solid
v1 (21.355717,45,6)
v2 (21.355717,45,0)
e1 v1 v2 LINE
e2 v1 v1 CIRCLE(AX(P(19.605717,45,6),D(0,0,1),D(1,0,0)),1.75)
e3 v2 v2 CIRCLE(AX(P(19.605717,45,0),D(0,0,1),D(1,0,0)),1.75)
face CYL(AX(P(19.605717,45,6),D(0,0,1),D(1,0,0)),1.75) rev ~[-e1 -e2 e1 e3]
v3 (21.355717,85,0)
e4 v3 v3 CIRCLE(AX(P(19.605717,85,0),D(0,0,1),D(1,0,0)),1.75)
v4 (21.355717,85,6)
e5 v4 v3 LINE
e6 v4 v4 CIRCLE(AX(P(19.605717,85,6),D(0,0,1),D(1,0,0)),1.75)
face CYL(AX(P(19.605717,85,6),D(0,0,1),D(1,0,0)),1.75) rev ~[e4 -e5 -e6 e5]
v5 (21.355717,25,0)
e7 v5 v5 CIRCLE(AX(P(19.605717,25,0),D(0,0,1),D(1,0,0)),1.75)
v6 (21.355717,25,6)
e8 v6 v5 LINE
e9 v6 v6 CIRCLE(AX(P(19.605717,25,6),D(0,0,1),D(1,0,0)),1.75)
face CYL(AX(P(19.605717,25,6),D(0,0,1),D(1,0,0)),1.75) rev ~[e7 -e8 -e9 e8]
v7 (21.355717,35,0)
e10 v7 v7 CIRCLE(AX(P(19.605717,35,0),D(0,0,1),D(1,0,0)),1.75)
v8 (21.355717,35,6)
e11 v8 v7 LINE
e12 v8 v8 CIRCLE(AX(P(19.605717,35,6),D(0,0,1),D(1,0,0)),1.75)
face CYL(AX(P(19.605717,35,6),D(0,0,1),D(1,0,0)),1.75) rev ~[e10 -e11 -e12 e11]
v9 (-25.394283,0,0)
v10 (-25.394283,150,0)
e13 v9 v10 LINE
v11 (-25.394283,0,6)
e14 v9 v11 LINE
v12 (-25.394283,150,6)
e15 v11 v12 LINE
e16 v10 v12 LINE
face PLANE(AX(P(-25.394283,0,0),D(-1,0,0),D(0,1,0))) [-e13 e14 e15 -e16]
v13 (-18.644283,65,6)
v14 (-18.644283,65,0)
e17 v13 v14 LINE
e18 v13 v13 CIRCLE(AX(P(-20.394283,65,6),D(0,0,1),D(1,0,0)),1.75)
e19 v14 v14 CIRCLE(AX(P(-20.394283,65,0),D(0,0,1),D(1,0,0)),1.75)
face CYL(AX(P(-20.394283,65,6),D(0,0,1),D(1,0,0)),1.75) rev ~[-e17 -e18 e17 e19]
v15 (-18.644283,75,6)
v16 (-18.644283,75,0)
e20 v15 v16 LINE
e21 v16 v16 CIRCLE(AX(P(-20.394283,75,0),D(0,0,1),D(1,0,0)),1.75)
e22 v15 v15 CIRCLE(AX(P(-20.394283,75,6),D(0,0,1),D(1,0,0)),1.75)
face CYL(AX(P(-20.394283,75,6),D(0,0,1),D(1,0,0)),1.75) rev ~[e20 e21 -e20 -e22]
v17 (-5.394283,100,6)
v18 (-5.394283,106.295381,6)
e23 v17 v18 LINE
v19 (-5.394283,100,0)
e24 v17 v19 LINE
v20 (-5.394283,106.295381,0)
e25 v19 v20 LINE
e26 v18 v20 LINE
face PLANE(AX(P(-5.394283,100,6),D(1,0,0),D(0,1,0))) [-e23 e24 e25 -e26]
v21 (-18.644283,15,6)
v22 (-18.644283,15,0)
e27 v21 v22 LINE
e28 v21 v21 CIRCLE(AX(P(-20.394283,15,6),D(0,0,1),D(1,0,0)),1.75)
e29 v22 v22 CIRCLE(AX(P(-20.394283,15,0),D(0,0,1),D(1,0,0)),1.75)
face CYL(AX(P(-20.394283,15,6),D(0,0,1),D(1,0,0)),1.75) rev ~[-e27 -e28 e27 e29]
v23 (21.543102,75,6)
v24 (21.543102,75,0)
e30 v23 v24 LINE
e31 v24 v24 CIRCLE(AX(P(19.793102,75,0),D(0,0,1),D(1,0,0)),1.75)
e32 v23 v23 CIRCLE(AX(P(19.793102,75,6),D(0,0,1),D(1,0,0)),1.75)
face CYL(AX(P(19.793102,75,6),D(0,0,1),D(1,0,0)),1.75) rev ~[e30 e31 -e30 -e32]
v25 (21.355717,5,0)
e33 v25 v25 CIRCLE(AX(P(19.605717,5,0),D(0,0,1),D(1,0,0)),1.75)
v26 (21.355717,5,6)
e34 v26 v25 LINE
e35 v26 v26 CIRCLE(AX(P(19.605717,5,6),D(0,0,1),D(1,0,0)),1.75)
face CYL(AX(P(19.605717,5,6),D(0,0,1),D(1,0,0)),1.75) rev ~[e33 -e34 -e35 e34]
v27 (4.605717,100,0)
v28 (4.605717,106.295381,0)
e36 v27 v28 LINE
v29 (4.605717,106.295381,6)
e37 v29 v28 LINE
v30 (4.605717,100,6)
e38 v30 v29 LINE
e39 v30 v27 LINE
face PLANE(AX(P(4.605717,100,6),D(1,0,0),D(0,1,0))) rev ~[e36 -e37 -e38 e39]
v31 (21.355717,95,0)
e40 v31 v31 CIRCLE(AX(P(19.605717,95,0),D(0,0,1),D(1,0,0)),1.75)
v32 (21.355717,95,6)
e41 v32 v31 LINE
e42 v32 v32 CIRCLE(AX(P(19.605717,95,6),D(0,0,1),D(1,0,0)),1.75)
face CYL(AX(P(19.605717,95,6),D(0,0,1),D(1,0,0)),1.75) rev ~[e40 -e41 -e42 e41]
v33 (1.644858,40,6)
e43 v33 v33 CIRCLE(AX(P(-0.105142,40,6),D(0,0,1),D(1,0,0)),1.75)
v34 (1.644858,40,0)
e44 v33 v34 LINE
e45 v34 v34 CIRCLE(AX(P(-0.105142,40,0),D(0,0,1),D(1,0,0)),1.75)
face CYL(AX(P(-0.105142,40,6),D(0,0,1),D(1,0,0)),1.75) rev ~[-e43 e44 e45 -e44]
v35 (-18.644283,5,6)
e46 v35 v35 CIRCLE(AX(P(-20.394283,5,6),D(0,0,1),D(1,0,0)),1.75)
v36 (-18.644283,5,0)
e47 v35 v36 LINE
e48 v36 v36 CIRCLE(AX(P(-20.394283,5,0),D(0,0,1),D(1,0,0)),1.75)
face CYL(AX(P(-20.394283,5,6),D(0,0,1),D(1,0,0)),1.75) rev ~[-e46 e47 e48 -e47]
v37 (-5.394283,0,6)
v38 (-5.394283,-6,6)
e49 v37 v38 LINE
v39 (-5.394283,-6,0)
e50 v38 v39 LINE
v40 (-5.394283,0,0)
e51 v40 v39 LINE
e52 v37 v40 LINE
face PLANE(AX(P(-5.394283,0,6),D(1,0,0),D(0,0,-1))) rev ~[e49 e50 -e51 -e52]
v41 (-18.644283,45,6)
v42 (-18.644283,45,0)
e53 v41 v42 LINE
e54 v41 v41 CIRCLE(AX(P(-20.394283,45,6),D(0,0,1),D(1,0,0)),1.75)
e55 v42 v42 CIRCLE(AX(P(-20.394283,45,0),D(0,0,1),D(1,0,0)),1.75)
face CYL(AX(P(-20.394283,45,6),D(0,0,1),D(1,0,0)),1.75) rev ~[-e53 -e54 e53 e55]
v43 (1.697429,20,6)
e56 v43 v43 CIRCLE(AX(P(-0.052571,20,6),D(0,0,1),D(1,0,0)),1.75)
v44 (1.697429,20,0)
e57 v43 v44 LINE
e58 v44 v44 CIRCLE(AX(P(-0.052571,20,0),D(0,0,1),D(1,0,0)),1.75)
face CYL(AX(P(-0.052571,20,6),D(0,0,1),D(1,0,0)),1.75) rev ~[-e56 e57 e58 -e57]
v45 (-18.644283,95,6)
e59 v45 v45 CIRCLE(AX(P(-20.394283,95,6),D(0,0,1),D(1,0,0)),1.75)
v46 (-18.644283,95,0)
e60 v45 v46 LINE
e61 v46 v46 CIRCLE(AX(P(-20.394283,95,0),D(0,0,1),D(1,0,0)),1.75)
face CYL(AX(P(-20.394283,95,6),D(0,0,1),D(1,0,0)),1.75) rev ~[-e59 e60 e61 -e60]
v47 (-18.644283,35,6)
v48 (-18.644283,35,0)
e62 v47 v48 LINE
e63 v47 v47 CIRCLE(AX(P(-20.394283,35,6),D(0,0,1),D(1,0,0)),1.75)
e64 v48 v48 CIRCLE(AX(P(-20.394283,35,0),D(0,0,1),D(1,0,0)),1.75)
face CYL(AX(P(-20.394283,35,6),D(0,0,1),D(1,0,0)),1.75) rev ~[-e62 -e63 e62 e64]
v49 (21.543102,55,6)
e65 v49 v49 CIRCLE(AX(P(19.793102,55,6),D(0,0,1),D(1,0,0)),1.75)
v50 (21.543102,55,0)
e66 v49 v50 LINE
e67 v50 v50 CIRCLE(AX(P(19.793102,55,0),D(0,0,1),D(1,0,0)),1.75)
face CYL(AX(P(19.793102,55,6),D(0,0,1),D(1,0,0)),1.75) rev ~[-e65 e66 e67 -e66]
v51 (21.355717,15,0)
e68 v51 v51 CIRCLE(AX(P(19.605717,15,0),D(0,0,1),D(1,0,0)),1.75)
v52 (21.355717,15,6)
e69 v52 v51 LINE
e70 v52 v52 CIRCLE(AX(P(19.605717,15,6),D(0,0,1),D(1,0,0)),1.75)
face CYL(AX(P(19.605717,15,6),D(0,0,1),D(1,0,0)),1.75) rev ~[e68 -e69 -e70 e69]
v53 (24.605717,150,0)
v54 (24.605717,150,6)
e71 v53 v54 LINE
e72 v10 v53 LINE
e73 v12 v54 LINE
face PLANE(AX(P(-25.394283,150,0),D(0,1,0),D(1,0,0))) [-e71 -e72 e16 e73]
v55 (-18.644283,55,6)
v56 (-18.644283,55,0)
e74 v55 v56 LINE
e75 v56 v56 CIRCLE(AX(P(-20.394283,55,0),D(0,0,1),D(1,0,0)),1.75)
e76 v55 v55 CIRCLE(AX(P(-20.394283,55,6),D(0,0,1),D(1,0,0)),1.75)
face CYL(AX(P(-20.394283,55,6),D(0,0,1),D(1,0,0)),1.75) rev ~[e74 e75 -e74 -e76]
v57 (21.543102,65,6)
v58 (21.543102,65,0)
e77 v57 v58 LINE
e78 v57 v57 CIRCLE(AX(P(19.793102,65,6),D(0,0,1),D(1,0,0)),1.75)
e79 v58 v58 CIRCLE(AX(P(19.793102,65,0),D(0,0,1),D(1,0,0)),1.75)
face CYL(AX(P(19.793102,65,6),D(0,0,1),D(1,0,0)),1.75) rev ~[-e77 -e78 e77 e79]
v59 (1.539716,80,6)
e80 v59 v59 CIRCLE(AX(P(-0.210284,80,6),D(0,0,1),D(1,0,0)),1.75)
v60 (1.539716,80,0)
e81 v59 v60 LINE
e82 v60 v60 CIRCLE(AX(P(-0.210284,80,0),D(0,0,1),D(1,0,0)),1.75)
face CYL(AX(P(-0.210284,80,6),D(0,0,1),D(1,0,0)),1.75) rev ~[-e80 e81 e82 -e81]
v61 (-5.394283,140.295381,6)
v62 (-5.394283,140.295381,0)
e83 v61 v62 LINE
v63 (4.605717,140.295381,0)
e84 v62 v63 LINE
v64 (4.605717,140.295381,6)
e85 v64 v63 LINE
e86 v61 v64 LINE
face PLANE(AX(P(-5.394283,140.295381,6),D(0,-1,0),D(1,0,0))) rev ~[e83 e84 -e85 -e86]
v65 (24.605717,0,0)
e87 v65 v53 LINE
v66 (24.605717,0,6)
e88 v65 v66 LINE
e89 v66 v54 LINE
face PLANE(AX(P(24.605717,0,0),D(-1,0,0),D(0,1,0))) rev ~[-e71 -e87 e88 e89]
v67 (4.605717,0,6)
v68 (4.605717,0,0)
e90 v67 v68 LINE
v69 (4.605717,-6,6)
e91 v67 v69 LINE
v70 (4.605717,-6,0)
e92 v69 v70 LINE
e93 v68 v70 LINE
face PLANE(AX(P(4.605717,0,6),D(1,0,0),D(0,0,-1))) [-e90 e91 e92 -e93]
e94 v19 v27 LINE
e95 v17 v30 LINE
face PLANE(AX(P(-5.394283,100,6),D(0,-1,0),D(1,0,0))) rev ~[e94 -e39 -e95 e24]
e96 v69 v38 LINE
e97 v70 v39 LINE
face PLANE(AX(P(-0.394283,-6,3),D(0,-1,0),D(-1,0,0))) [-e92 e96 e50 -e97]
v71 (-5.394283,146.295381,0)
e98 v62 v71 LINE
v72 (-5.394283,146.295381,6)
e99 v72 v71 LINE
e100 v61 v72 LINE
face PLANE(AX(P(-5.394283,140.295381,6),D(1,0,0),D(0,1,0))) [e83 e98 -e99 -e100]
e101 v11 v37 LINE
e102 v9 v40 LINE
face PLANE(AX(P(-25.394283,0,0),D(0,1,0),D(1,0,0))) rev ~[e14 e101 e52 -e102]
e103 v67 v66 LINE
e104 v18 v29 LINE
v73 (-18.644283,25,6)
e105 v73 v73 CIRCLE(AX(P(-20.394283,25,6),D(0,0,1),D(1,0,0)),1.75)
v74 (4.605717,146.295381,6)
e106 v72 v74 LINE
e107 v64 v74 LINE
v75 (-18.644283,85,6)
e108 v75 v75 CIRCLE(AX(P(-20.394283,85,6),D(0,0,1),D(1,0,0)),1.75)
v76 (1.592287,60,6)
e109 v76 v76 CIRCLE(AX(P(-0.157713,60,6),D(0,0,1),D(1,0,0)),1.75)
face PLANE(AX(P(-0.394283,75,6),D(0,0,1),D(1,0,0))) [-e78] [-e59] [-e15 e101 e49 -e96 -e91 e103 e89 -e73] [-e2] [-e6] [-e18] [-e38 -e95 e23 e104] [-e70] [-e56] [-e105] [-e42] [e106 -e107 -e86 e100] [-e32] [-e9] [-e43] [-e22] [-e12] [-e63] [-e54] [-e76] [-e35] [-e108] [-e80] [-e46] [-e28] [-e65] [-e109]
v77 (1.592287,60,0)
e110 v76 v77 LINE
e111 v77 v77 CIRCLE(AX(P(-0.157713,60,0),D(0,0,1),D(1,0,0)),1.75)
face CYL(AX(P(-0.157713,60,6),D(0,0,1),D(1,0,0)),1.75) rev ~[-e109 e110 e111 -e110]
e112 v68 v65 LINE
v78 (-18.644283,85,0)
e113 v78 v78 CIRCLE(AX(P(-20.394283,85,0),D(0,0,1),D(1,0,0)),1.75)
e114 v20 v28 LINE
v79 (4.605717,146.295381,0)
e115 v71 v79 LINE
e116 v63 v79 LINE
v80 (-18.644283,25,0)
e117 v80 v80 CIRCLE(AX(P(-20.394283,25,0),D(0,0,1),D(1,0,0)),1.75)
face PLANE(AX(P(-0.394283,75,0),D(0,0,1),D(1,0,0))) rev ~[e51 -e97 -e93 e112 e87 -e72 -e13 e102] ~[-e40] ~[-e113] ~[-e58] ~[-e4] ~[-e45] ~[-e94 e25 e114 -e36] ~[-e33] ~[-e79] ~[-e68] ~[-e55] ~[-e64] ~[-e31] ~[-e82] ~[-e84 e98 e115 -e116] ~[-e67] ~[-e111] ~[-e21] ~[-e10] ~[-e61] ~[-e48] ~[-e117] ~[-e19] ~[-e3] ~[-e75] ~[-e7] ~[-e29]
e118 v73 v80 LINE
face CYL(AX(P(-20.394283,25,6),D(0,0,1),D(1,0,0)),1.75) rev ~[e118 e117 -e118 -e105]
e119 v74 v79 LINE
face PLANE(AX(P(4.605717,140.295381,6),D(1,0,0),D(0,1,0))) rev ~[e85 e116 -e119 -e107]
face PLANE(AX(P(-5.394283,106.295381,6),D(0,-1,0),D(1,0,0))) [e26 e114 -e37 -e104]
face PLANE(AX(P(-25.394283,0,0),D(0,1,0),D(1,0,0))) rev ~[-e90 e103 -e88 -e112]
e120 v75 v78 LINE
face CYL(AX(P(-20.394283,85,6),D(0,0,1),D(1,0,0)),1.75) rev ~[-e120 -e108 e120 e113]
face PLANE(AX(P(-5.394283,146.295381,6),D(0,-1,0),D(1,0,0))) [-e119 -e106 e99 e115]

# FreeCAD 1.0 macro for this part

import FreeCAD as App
import Part
import Sketcher
Q = App.Units.Quantity


def add_polygon(sketch, points):
    """Adds a closed chain of lines whose ends are joined by coincident constraints."""
    first, n = sketch.GeometryCount, len(points)
    for a, b in zip(points, points[1:] + points[:1]):
        sketch.addGeometry(Part.LineSegment(App.Vector(*a, 0), App.Vector(*b, 0)), False)
    for i in range(n):
        sketch.addConstraint(Sketcher.Constraint("Coincident", first + i, 2, first + (i + 1) % n, 1))

doc = App.newDocument("Part")
params = doc.addObject("Spreadsheet::Sheet", "Params")
for row, (alias, value) in enumerate([
    ("sketch1_width", "50 mm"),
    ("sketch1_height", "150 mm"),
    ("pad1_length", "6 mm"),
    ("sketch2_diameter", "3.5 mm"),
    ("pocket1_length", "6 mm"),
    ("sketch3_width", "10 mm"),
    ("sketch3_height", "6 mm"),
    ("pad2_length", "6 mm"),
    ("sketch4_width", "10 mm"),
    ("pocket2_length", "6 mm"),
    ("sketch5_width", "10 mm"),
    ("sketch5_height", "6 mm"),
    ("pocket3_length", "6 mm"),
], start=1):
    params.set(f"A{row}", alias)
    params.set(f"B{row}", "=" + value)
    params.setAlias(f"B{row}", alias)

body = doc.addObject("PartDesign::Body", "Body")

# Sketch on XY plane
sketch1 = body.newObject("Sketcher::SketchObject", "Sketch")
sketch1.AttachmentSupport = (doc.getObject("XY_Plane"), [""])
sketch1.MapMode = "FlatFace"
add_polygon(sketch1, [(-25, 150), (-25, 0), (25, 0), (25, 150)])  # lines 0-3
sketch1.addConstraint([
    Sketcher.Constraint("Vertical", 0),
    Sketcher.Constraint("Horizontal", 1),
    Sketcher.Constraint("Vertical", 2),
    Sketcher.Constraint("Horizontal", 3),
    Sketcher.Constraint("PointOnObject", 0, 2, -1),
    Sketcher.Constraint("DistanceX", 1, 1, 1, 2, Q("50 mm")),
    Sketcher.Constraint("DistanceY", 0, 2, 0, 1, Q("150 mm")),
    Sketcher.Constraint("DistanceX", 0, 2, -1, 1, Q("25.394283 mm")),
])
sketch1.setExpression("Constraints[9]", "Params.sketch1_width")
sketch1.setExpression("Constraints[10]", "Params.sketch1_height")
pad1 = body.newObject("PartDesign::Pad", "Pad")
pad1.Profile = sketch1
pad1.setExpression("Length", "Params.pad1_length")

# Sketch on XY plane
sketch2 = body.newObject("Sketcher::SketchObject", "Sketch001")
sketch2.AttachmentSupport = (doc.getObject("XY_Plane"), [""])
sketch2.MapMode = "FlatFace"
sketch2.AttachmentOffset = App.Placement(App.Vector(0, 0, 6), App.Rotation())
sketch2.addGeometry([
    Part.Circle(App.Vector(-20.4, 95, 0), App.Vector(0, 0, 1), 1.8),  # 0
    Part.Circle(App.Vector(-20.4, 85, 0), App.Vector(0, 0, 1), 1.8),  # 1
    Part.Circle(App.Vector(-20.4, 75, 0), App.Vector(0, 0, 1), 1.8),  # 2
    Part.Circle(App.Vector(-20.4, 65, 0), App.Vector(0, 0, 1), 1.8),  # 3
    Part.Circle(App.Vector(-20.4, 55, 0), App.Vector(0, 0, 1), 1.8),  # 4
    Part.Circle(App.Vector(-20.4, 45, 0), App.Vector(0, 0, 1), 1.8),  # 5
    Part.Circle(App.Vector(-20.4, 35, 0), App.Vector(0, 0, 1), 1.8),  # 6
    Part.Circle(App.Vector(-20.4, 25, 0), App.Vector(0, 0, 1), 1.8),  # 7
    Part.Circle(App.Vector(-20.4, 15, 0), App.Vector(0, 0, 1), 1.8),  # 8
    Part.Circle(App.Vector(-20.4, 5, 0), App.Vector(0, 0, 1), 1.8),  # 9
    Part.Circle(App.Vector(19.6, 95, 0), App.Vector(0, 0, 1), 1.8),  # 10
    Part.Circle(App.Vector(19.6, 85, 0), App.Vector(0, 0, 1), 1.8),  # 11
    Part.Circle(App.Vector(19.8, 75, 0), App.Vector(0, 0, 1), 1.8),  # 12
    Part.Circle(App.Vector(19.8, 65, 0), App.Vector(0, 0, 1), 1.8),  # 13
    Part.Circle(App.Vector(19.8, 55, 0), App.Vector(0, 0, 1), 1.8),  # 14
    Part.Circle(App.Vector(19.6, 45, 0), App.Vector(0, 0, 1), 1.8),  # 15
    Part.Circle(App.Vector(19.6, 35, 0), App.Vector(0, 0, 1), 1.8),  # 16
    Part.Circle(App.Vector(19.6, 25, 0), App.Vector(0, 0, 1), 1.8),  # 17
    Part.Circle(App.Vector(19.6, 15, 0), App.Vector(0, 0, 1), 1.8),  # 18
    Part.Circle(App.Vector(19.6, 5, 0), App.Vector(0, 0, 1), 1.8),  # 19
    Part.Circle(App.Vector(-0.1, 20, 0), App.Vector(0, 0, 1), 1.8),  # 20
    Part.Circle(App.Vector(-0.2, 80, 0), App.Vector(0, 0, 1), 1.8),  # 21
    Part.Circle(App.Vector(-0.1, 40, 0), App.Vector(0, 0, 1), 1.8),  # 22
    Part.Circle(App.Vector(-0.2, 60, 0), App.Vector(0, 0, 1), 1.8),  # 23
], False)
sketch2.addConstraint([
    Sketcher.Constraint("Equal", 0, 1),
    Sketcher.Constraint("Equal", 1, 2),
    Sketcher.Constraint("Equal", 2, 3),
    Sketcher.Constraint("Equal", 3, 4),
    Sketcher.Constraint("Equal", 4, 5),
    Sketcher.Constraint("Equal", 5, 6),
    Sketcher.Constraint("Equal", 6, 7),
    Sketcher.Constraint("Equal", 7, 8),
    Sketcher.Constraint("Equal", 8, 9),
    Sketcher.Constraint("Equal", 9, 10),
    Sketcher.Constraint("Equal", 10, 11),
    Sketcher.Constraint("Equal", 11, 12),
    Sketcher.Constraint("Equal", 12, 13),
    Sketcher.Constraint("Equal", 13, 14),
    Sketcher.Constraint("Equal", 14, 15),
    Sketcher.Constraint("Equal", 15, 16),
    Sketcher.Constraint("Equal", 16, 17),
    Sketcher.Constraint("Equal", 17, 18),
    Sketcher.Constraint("Equal", 18, 19),
    Sketcher.Constraint("Equal", 19, 20),
    Sketcher.Constraint("Equal", 20, 21),
    Sketcher.Constraint("Equal", 21, 22),
    Sketcher.Constraint("Equal", 22, 23),
    Sketcher.Constraint("Horizontal", 0, 3, 10, 3),
    Sketcher.Constraint("Horizontal", 1, 3, 11, 3),
    Sketcher.Constraint("Horizontal", 2, 3, 12, 3),
    Sketcher.Constraint("Horizontal", 3, 3, 13, 3),
    Sketcher.Constraint("Horizontal", 4, 3, 14, 3),
    Sketcher.Constraint("Horizontal", 5, 3, 15, 3),
    Sketcher.Constraint("Horizontal", 6, 3, 16, 3),
    Sketcher.Constraint("Horizontal", 7, 3, 17, 3),
    Sketcher.Constraint("Horizontal", 8, 3, 18, 3),
    Sketcher.Constraint("Horizontal", 9, 3, 19, 3),
    Sketcher.Constraint("Vertical", 0, 3, 1, 3),
    Sketcher.Constraint("Vertical", 1, 3, 2, 3),
    Sketcher.Constraint("Vertical", 2, 3, 3, 3),
    Sketcher.Constraint("Vertical", 3, 3, 4, 3),
    Sketcher.Constraint("Vertical", 4, 3, 5, 3),
    Sketcher.Constraint("Vertical", 5, 3, 6, 3),
    Sketcher.Constraint("Vertical", 6, 3, 7, 3),
    Sketcher.Constraint("Vertical", 7, 3, 8, 3),
    Sketcher.Constraint("Vertical", 8, 3, 9, 3),
    Sketcher.Constraint("Vertical", 10, 3, 11, 3),
    Sketcher.Constraint("Vertical", 12, 3, 13, 3),
    Sketcher.Constraint("Vertical", 13, 3, 14, 3),
    Sketcher.Constraint("Vertical", 11, 3, 15, 3),
    Sketcher.Constraint("Vertical", 15, 3, 16, 3),
    Sketcher.Constraint("Vertical", 16, 3, 17, 3),
    Sketcher.Constraint("Vertical", 17, 3, 18, 3),
    Sketcher.Constraint("Vertical", 18, 3, 19, 3),
    Sketcher.Constraint("Diameter", 0, Q("3.5 mm")),
    Sketcher.Constraint("DistanceY", -1, 1, 0, 3, Q("95 mm")),
    Sketcher.Constraint("DistanceY", -1, 1, 1, 3, Q("85 mm")),
    Sketcher.Constraint("DistanceY", -1, 1, 2, 3, Q("75 mm")),
    Sketcher.Constraint("DistanceY", -1, 1, 3, 3, Q("65 mm")),
    Sketcher.Constraint("DistanceY", -1, 1, 4, 3, Q("55 mm")),
    Sketcher.Constraint("DistanceY", -1, 1, 5, 3, Q("45 mm")),
    Sketcher.Constraint("DistanceY", -1, 1, 6, 3, Q("35 mm")),
    Sketcher.Constraint("DistanceY", -1, 1, 7, 3, Q("25 mm")),
    Sketcher.Constraint("DistanceY", -1, 1, 8, 3, Q("15 mm")),
    Sketcher.Constraint("DistanceY", -1, 1, 9, 3, Q("5 mm")),
    Sketcher.Constraint("DistanceY", -1, 1, 20, 3, Q("20 mm")),
    Sketcher.Constraint("DistanceY", -1, 1, 21, 3, Q("80 mm")),
    Sketcher.Constraint("DistanceY", -1, 1, 22, 3, Q("40 mm")),
    Sketcher.Constraint("DistanceY", -1, 1, 23, 3, Q("60 mm")),
    Sketcher.Constraint("DistanceX", 0, 3, 10, 3, Q("40 mm")),
    Sketcher.Constraint("DistanceX", 21, 3, 11, 3, Q("19.816001 mm")),
    Sketcher.Constraint("DistanceX", -1, 1, 12, 3, Q("19.793102 mm")),
    Sketcher.Constraint("DistanceX", 20, 3, -1, 1, Q("0.052571 mm")),
    Sketcher.Constraint("DistanceX", 22, 3, 20, 3, Q("0.052571 mm")),
    Sketcher.Constraint("DistanceX", 22, 3, 15, 3, Q("19.710859 mm")),
    Sketcher.Constraint("DistanceX", 21, 3, 23, 3, Q("0.052571 mm")),
])
sketch2.setExpression("Constraints[50]", "Params.sketch2_diameter")
pocket1 = body.newObject("PartDesign::Pocket", "Pocket")
pocket1.Profile = sketch2
pocket1.setExpression("Length", "Params.pocket1_length")

# Sketch on XZ plane
sketch3 = body.newObject("Sketcher::SketchObject", "Sketch002")
sketch3.AttachmentSupport = (doc.getObject("XZ_Plane"), [""])
sketch3.MapMode = "FlatFace"
add_polygon(sketch3, [(5, 0), (5, 6), (-5, 6), (-5, 0)])  # lines 0-3
sketch3.addConstraint([
    Sketcher.Constraint("Vertical", 0),
    Sketcher.Constraint("Horizontal", 1),
    Sketcher.Constraint("Vertical", 2),
    Sketcher.Constraint("Horizontal", 3),
    Sketcher.Constraint("PointOnObject", 2, 2, -1),
    Sketcher.Constraint("DistanceX", 1, 2, 1, 1, Q("10 mm")),
    Sketcher.Constraint("DistanceY", 0, 1, 0, 2, Q("6 mm")),
    Sketcher.Constraint("DistanceX", -1, 1, 0, 2, Q("4.605717 mm")),
])
sketch3.setExpression("Constraints[9]", "Params.sketch3_width")
sketch3.setExpression("Constraints[10]", "Params.sketch3_height")
pad2 = body.newObject("PartDesign::Pad", "Pad001")
pad2.Profile = sketch3
pad2.setExpression("Length", "Params.pad2_length")

# Sketch on XY plane
sketch4 = body.newObject("Sketcher::SketchObject", "Sketch003")
sketch4.AttachmentSupport = (doc.getObject("XY_Plane"), [""])
sketch4.MapMode = "FlatFace"
sketch4.AttachmentOffset = App.Placement(App.Vector(0, 0, 6), App.Rotation())
add_polygon(sketch4, [(-5, 106), (-5, 100), (5, 100), (5, 106)])  # lines 0-3
sketch4.addConstraint([
    Sketcher.Constraint("Vertical", 0),
    Sketcher.Constraint("Horizontal", 1),
    Sketcher.Constraint("Vertical", 2),
    Sketcher.Constraint("Horizontal", 3),
    Sketcher.Constraint("DistanceX", 1, 1, 1, 2, Q("10 mm")),
    Sketcher.Constraint("DistanceY", -1, 1, 0, 2, Q("100 mm")),
    Sketcher.Constraint("DistanceY", 0, 2, 0, 1, Q("6.295381 mm")),
    Sketcher.Constraint("DistanceX", 0, 2, -1, 1, Q("5.394283 mm")),
])
sketch4.setExpression("Constraints[8]", "Params.sketch4_width")
pocket2 = body.newObject("PartDesign::Pocket", "Pocket001")
pocket2.Profile = sketch4
pocket2.setExpression("Length", "Params.pocket2_length")

# Sketch on XY plane
sketch5 = body.newObject("Sketcher::SketchObject", "Sketch004")
sketch5.AttachmentSupport = (doc.getObject("XY_Plane"), [""])
sketch5.MapMode = "FlatFace"
sketch5.AttachmentOffset = App.Placement(App.Vector(0, 0, 6), App.Rotation())
add_polygon(sketch5, [(-5, 146), (-5, 140), (5, 140), (5, 146)])  # lines 0-3
sketch5.addConstraint([
    Sketcher.Constraint("Vertical", 0),
    Sketcher.Constraint("Horizontal", 1),
    Sketcher.Constraint("Vertical", 2),
    Sketcher.Constraint("Horizontal", 3),
    Sketcher.Constraint("DistanceX", 1, 1, 1, 2, Q("10 mm")),
    Sketcher.Constraint("DistanceY", 0, 2, 0, 1, Q("6 mm")),
    Sketcher.Constraint("DistanceY", -1, 1, 0, 2, Q("140.295381 mm")),
    Sketcher.Constraint("DistanceX", 0, 2, -1, 1, Q("5.394283 mm")),
])
sketch5.setExpression("Constraints[8]", "Params.sketch5_width")
sketch5.setExpression("Constraints[9]", "Params.sketch5_height")
pocket3 = body.newObject("PartDesign::Pocket", "Pocket002")
pocket3.Profile = sketch5
pocket3.setExpression("Length", "Params.pocket3_length")

doc.recompute()
